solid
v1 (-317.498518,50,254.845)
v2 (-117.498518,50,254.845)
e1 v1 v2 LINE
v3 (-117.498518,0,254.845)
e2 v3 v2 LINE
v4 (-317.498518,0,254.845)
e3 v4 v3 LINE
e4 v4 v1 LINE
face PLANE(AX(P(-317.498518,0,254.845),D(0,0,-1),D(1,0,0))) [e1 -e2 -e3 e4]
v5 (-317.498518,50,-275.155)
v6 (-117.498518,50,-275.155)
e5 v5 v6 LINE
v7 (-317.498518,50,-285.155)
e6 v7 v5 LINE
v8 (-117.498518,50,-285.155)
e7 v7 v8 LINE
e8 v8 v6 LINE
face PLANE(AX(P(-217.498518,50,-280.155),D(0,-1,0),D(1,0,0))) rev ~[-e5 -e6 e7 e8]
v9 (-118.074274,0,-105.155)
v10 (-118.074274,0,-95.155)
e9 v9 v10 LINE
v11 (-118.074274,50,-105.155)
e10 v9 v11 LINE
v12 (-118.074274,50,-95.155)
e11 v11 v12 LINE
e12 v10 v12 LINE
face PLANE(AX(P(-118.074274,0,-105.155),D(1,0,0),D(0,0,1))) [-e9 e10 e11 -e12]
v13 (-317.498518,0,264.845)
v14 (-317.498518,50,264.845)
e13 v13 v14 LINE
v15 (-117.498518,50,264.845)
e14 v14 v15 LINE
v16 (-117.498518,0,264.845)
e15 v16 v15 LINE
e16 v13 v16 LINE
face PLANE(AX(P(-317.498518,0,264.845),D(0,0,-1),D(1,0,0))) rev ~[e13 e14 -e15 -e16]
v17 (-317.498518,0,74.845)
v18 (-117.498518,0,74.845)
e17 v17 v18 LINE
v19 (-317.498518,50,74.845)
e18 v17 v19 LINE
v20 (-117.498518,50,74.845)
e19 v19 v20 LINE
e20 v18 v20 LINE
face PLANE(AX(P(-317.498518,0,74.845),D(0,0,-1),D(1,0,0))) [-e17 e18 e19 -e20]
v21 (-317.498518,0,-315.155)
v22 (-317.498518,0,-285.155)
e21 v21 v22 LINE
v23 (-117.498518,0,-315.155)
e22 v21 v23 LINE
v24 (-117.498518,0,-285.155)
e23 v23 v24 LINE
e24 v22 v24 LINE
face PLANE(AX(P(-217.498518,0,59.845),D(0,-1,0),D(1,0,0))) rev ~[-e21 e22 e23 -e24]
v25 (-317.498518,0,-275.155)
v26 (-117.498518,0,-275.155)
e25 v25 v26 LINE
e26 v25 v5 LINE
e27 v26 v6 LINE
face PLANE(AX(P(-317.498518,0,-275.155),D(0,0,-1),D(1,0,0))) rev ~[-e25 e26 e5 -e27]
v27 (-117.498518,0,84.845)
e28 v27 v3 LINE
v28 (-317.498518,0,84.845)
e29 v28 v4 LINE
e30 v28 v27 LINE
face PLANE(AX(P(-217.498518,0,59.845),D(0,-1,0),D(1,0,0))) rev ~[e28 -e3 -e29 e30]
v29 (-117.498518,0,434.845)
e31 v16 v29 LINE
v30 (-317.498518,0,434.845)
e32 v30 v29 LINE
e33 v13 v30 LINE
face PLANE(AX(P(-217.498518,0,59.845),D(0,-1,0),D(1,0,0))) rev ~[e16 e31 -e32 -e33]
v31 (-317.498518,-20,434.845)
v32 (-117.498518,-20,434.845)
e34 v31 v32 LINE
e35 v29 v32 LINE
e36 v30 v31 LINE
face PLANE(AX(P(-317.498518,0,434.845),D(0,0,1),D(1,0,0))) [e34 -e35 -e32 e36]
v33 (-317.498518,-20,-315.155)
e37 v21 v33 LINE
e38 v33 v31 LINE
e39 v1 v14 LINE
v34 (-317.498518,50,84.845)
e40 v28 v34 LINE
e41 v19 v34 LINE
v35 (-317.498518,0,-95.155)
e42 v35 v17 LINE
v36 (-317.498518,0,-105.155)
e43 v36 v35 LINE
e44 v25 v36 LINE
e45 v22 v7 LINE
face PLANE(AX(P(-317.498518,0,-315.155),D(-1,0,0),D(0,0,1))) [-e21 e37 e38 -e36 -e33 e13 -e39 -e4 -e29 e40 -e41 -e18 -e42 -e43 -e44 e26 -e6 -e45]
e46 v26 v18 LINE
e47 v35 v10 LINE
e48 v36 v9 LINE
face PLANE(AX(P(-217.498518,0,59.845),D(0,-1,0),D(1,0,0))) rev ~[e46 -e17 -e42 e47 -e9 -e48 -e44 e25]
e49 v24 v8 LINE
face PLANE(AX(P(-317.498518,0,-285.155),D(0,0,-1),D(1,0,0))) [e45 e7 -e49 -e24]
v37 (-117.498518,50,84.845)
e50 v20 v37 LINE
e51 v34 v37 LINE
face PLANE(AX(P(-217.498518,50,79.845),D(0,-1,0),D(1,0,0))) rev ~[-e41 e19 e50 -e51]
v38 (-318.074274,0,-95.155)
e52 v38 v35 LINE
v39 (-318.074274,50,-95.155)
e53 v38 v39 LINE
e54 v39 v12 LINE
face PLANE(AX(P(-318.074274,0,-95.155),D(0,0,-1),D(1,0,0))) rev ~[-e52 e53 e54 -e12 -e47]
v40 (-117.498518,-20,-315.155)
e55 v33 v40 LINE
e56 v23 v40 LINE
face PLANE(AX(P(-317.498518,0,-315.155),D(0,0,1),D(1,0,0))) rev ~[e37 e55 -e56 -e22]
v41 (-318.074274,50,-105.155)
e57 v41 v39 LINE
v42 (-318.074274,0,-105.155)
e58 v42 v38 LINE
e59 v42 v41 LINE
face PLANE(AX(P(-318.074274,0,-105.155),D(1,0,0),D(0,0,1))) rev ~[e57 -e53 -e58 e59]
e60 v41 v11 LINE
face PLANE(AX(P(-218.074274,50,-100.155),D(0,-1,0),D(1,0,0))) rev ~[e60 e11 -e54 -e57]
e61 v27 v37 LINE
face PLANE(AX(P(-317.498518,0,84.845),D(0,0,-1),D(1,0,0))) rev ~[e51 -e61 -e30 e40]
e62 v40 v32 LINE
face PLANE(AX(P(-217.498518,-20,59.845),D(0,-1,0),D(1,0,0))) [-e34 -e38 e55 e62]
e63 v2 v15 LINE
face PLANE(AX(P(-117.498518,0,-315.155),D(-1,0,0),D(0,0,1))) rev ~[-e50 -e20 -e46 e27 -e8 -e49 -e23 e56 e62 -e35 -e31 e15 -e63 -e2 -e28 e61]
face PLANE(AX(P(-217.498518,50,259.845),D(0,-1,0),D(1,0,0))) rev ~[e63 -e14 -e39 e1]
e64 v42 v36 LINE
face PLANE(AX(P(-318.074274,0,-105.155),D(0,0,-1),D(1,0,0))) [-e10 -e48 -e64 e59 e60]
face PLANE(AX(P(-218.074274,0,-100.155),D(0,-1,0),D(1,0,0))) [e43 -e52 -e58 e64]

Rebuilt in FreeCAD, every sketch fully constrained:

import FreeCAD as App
import Part
import Sketcher


def add_polygon(sketch, points):
    """Adds a closed chain of lines whose ends are joined by coincident constraints."""
    first, n = sketch.GeometryCount, len(points)
    for a, b in zip(points, points[1:] + points[:1]):
        sketch.addGeometry(Part.LineSegment(App.Vector(*a, 0), App.Vector(*b, 0)), False)
    for i in range(n):
        sketch.addConstraint(Sketcher.Constraint("Coincident", first + i, 2, first + (i + 1) % n, 1))

doc = App.newDocument("Part")
body = doc.addObject("PartDesign::Body", "Body")

sketch1 = body.newObject("Sketcher::SketchObject", "Sketch")
sketch1.AttachmentSupport = (doc.getObject("XZ_Plane"), [""])
sketch1.MapMode = "FlatFace"
add_polygon(sketch1, [(-317.498518, 434.845), (-317.498518, -315.155), (-117.498518, -315.155), (-117.498518, 434.845)])
sketch1.addConstraint([
    Sketcher.Constraint("Vertical", 0),
    Sketcher.Constraint("Horizontal", 1),
    Sketcher.Constraint("Vertical", 2),
    Sketcher.Constraint("Horizontal", 3),
    Sketcher.Constraint("DistanceX", 1, 1, 1, 2, 200.0),
    Sketcher.Constraint("DistanceY", 0, 2, 0, 1, 750.0),
    Sketcher.Constraint("DistanceY", 0, 2, -1, 1, 315.155),
    Sketcher.Constraint("DistanceX", 0, 2, -1, 1, 317.498518),
])
pad1 = body.newObject("PartDesign::Pad", "Pad")
pad1.Profile = sketch1
pad1.Length = 20

sketch2 = body.newObject("Sketcher::SketchObject", "Sketch001")
sketch2.AttachmentSupport = (doc.getObject("XZ_Plane"), [""])
sketch2.MapMode = "FlatFace"
add_polygon(sketch2, [(-318.074274, -95.155), (-318.074274, -105.155), (-118.074274, -105.155), (-118.074274, -95.155)])
sketch2.addConstraint([
    Sketcher.Constraint("Vertical", 0),
    Sketcher.Constraint("Horizontal", 1),
    Sketcher.Constraint("Vertical", 2),
    Sketcher.Constraint("Horizontal", 3),
    Sketcher.Constraint("DistanceX", 1, 1, 1, 2, 200.0),
    Sketcher.Constraint("DistanceY", 0, 2, 0, 1, 10.0),
    Sketcher.Constraint("DistanceY", 0, 2, -1, 1, 105.155),
    Sketcher.Constraint("DistanceX", 0, 2, -1, 1, 318.074274),
])
pad2 = body.newObject("PartDesign::Pad", "Pad001")
pad2.Profile = sketch2
pad2.Length = 50
pad2.Reversed = True

sketch3 = body.newObject("Sketcher::SketchObject", "Sketch002")
sketch3.AttachmentSupport = (doc.getObject("XZ_Plane"), [""])
sketch3.MapMode = "FlatFace"
add_polygon(sketch3, [(-317.498518, 84.845), (-317.498518, 74.845), (-117.498518, 74.845), (-117.498518, 84.845)])
sketch3.addConstraint([
    Sketcher.Constraint("Vertical", 0),
    Sketcher.Constraint("Horizontal", 1),
    Sketcher.Constraint("Vertical", 2),
    Sketcher.Constraint("Horizontal", 3),
    Sketcher.Constraint("DistanceX", 1, 1, 1, 2, 200.0),
    Sketcher.Constraint("DistanceY", 0, 2, 0, 1, 10.0),
    Sketcher.Constraint("DistanceY", -1, 1, 0, 2, 74.845),
    Sketcher.Constraint("DistanceX", 0, 2, -1, 1, 317.498518),
])
pad3 = body.newObject("PartDesign::Pad", "Pad002")
pad3.Profile = sketch3
pad3.Length = 50
pad3.Reversed = True

sketch4 = body.newObject("Sketcher::SketchObject", "Sketch003")
sketch4.AttachmentSupport = (doc.getObject("XZ_Plane"), [""])
sketch4.MapMode = "FlatFace"
add_polygon(sketch4, [(-317.498518, 264.845), (-317.498518, 254.845), (-117.498518, 254.845), (-117.498518, 264.845)])
sketch4.addConstraint([
    Sketcher.Constraint("Vertical", 0),
    Sketcher.Constraint("Horizontal", 1),
    Sketcher.Constraint("Vertical", 2),
    Sketcher.Constraint("Horizontal", 3),
    Sketcher.Constraint("DistanceX", 1, 1, 1, 2, 200.0),
    Sketcher.Constraint("DistanceY", 0, 2, 0, 1, 10.0),
    Sketcher.Constraint("DistanceY", -1, 1, 0, 2, 254.845),
    Sketcher.Constraint("DistanceX", 0, 2, -1, 1, 317.498518),
])
pad4 = body.newObject("PartDesign::Pad", "Pad003")
pad4.Profile = sketch4
pad4.Length = 50
pad4.Reversed = True

sketch5 = body.newObject("Sketcher::SketchObject", "Sketch004")
sketch5.AttachmentSupport = (doc.getObject("XZ_Plane"), [""])
sketch5.MapMode = "FlatFace"
add_polygon(sketch5, [(-317.498518, -275.155), (-317.498518, -285.155), (-117.498518, -285.155), (-117.498518, -275.155)])
sketch5.addConstraint([
    Sketcher.Constraint("Vertical", 0),
    Sketcher.Constraint("Horizontal", 1),
    Sketcher.Constraint("Vertical", 2),
    Sketcher.Constraint("Horizontal", 3),
    Sketcher.Constraint("DistanceX", 1, 1, 1, 2, 200.0),
    Sketcher.Constraint("DistanceY", 0, 2, 0, 1, 10.0),
    Sketcher.Constraint("DistanceY", 0, 2, -1, 1, 285.155),
    Sketcher.Constraint("DistanceX", 0, 2, -1, 1, 317.498518),
])
pad5 = body.newObject("PartDesign::Pad", "Pad004")
pad5.Profile = sketch5
pad5.Length = 50
pad5.Reversed = True

doc.recompute()
